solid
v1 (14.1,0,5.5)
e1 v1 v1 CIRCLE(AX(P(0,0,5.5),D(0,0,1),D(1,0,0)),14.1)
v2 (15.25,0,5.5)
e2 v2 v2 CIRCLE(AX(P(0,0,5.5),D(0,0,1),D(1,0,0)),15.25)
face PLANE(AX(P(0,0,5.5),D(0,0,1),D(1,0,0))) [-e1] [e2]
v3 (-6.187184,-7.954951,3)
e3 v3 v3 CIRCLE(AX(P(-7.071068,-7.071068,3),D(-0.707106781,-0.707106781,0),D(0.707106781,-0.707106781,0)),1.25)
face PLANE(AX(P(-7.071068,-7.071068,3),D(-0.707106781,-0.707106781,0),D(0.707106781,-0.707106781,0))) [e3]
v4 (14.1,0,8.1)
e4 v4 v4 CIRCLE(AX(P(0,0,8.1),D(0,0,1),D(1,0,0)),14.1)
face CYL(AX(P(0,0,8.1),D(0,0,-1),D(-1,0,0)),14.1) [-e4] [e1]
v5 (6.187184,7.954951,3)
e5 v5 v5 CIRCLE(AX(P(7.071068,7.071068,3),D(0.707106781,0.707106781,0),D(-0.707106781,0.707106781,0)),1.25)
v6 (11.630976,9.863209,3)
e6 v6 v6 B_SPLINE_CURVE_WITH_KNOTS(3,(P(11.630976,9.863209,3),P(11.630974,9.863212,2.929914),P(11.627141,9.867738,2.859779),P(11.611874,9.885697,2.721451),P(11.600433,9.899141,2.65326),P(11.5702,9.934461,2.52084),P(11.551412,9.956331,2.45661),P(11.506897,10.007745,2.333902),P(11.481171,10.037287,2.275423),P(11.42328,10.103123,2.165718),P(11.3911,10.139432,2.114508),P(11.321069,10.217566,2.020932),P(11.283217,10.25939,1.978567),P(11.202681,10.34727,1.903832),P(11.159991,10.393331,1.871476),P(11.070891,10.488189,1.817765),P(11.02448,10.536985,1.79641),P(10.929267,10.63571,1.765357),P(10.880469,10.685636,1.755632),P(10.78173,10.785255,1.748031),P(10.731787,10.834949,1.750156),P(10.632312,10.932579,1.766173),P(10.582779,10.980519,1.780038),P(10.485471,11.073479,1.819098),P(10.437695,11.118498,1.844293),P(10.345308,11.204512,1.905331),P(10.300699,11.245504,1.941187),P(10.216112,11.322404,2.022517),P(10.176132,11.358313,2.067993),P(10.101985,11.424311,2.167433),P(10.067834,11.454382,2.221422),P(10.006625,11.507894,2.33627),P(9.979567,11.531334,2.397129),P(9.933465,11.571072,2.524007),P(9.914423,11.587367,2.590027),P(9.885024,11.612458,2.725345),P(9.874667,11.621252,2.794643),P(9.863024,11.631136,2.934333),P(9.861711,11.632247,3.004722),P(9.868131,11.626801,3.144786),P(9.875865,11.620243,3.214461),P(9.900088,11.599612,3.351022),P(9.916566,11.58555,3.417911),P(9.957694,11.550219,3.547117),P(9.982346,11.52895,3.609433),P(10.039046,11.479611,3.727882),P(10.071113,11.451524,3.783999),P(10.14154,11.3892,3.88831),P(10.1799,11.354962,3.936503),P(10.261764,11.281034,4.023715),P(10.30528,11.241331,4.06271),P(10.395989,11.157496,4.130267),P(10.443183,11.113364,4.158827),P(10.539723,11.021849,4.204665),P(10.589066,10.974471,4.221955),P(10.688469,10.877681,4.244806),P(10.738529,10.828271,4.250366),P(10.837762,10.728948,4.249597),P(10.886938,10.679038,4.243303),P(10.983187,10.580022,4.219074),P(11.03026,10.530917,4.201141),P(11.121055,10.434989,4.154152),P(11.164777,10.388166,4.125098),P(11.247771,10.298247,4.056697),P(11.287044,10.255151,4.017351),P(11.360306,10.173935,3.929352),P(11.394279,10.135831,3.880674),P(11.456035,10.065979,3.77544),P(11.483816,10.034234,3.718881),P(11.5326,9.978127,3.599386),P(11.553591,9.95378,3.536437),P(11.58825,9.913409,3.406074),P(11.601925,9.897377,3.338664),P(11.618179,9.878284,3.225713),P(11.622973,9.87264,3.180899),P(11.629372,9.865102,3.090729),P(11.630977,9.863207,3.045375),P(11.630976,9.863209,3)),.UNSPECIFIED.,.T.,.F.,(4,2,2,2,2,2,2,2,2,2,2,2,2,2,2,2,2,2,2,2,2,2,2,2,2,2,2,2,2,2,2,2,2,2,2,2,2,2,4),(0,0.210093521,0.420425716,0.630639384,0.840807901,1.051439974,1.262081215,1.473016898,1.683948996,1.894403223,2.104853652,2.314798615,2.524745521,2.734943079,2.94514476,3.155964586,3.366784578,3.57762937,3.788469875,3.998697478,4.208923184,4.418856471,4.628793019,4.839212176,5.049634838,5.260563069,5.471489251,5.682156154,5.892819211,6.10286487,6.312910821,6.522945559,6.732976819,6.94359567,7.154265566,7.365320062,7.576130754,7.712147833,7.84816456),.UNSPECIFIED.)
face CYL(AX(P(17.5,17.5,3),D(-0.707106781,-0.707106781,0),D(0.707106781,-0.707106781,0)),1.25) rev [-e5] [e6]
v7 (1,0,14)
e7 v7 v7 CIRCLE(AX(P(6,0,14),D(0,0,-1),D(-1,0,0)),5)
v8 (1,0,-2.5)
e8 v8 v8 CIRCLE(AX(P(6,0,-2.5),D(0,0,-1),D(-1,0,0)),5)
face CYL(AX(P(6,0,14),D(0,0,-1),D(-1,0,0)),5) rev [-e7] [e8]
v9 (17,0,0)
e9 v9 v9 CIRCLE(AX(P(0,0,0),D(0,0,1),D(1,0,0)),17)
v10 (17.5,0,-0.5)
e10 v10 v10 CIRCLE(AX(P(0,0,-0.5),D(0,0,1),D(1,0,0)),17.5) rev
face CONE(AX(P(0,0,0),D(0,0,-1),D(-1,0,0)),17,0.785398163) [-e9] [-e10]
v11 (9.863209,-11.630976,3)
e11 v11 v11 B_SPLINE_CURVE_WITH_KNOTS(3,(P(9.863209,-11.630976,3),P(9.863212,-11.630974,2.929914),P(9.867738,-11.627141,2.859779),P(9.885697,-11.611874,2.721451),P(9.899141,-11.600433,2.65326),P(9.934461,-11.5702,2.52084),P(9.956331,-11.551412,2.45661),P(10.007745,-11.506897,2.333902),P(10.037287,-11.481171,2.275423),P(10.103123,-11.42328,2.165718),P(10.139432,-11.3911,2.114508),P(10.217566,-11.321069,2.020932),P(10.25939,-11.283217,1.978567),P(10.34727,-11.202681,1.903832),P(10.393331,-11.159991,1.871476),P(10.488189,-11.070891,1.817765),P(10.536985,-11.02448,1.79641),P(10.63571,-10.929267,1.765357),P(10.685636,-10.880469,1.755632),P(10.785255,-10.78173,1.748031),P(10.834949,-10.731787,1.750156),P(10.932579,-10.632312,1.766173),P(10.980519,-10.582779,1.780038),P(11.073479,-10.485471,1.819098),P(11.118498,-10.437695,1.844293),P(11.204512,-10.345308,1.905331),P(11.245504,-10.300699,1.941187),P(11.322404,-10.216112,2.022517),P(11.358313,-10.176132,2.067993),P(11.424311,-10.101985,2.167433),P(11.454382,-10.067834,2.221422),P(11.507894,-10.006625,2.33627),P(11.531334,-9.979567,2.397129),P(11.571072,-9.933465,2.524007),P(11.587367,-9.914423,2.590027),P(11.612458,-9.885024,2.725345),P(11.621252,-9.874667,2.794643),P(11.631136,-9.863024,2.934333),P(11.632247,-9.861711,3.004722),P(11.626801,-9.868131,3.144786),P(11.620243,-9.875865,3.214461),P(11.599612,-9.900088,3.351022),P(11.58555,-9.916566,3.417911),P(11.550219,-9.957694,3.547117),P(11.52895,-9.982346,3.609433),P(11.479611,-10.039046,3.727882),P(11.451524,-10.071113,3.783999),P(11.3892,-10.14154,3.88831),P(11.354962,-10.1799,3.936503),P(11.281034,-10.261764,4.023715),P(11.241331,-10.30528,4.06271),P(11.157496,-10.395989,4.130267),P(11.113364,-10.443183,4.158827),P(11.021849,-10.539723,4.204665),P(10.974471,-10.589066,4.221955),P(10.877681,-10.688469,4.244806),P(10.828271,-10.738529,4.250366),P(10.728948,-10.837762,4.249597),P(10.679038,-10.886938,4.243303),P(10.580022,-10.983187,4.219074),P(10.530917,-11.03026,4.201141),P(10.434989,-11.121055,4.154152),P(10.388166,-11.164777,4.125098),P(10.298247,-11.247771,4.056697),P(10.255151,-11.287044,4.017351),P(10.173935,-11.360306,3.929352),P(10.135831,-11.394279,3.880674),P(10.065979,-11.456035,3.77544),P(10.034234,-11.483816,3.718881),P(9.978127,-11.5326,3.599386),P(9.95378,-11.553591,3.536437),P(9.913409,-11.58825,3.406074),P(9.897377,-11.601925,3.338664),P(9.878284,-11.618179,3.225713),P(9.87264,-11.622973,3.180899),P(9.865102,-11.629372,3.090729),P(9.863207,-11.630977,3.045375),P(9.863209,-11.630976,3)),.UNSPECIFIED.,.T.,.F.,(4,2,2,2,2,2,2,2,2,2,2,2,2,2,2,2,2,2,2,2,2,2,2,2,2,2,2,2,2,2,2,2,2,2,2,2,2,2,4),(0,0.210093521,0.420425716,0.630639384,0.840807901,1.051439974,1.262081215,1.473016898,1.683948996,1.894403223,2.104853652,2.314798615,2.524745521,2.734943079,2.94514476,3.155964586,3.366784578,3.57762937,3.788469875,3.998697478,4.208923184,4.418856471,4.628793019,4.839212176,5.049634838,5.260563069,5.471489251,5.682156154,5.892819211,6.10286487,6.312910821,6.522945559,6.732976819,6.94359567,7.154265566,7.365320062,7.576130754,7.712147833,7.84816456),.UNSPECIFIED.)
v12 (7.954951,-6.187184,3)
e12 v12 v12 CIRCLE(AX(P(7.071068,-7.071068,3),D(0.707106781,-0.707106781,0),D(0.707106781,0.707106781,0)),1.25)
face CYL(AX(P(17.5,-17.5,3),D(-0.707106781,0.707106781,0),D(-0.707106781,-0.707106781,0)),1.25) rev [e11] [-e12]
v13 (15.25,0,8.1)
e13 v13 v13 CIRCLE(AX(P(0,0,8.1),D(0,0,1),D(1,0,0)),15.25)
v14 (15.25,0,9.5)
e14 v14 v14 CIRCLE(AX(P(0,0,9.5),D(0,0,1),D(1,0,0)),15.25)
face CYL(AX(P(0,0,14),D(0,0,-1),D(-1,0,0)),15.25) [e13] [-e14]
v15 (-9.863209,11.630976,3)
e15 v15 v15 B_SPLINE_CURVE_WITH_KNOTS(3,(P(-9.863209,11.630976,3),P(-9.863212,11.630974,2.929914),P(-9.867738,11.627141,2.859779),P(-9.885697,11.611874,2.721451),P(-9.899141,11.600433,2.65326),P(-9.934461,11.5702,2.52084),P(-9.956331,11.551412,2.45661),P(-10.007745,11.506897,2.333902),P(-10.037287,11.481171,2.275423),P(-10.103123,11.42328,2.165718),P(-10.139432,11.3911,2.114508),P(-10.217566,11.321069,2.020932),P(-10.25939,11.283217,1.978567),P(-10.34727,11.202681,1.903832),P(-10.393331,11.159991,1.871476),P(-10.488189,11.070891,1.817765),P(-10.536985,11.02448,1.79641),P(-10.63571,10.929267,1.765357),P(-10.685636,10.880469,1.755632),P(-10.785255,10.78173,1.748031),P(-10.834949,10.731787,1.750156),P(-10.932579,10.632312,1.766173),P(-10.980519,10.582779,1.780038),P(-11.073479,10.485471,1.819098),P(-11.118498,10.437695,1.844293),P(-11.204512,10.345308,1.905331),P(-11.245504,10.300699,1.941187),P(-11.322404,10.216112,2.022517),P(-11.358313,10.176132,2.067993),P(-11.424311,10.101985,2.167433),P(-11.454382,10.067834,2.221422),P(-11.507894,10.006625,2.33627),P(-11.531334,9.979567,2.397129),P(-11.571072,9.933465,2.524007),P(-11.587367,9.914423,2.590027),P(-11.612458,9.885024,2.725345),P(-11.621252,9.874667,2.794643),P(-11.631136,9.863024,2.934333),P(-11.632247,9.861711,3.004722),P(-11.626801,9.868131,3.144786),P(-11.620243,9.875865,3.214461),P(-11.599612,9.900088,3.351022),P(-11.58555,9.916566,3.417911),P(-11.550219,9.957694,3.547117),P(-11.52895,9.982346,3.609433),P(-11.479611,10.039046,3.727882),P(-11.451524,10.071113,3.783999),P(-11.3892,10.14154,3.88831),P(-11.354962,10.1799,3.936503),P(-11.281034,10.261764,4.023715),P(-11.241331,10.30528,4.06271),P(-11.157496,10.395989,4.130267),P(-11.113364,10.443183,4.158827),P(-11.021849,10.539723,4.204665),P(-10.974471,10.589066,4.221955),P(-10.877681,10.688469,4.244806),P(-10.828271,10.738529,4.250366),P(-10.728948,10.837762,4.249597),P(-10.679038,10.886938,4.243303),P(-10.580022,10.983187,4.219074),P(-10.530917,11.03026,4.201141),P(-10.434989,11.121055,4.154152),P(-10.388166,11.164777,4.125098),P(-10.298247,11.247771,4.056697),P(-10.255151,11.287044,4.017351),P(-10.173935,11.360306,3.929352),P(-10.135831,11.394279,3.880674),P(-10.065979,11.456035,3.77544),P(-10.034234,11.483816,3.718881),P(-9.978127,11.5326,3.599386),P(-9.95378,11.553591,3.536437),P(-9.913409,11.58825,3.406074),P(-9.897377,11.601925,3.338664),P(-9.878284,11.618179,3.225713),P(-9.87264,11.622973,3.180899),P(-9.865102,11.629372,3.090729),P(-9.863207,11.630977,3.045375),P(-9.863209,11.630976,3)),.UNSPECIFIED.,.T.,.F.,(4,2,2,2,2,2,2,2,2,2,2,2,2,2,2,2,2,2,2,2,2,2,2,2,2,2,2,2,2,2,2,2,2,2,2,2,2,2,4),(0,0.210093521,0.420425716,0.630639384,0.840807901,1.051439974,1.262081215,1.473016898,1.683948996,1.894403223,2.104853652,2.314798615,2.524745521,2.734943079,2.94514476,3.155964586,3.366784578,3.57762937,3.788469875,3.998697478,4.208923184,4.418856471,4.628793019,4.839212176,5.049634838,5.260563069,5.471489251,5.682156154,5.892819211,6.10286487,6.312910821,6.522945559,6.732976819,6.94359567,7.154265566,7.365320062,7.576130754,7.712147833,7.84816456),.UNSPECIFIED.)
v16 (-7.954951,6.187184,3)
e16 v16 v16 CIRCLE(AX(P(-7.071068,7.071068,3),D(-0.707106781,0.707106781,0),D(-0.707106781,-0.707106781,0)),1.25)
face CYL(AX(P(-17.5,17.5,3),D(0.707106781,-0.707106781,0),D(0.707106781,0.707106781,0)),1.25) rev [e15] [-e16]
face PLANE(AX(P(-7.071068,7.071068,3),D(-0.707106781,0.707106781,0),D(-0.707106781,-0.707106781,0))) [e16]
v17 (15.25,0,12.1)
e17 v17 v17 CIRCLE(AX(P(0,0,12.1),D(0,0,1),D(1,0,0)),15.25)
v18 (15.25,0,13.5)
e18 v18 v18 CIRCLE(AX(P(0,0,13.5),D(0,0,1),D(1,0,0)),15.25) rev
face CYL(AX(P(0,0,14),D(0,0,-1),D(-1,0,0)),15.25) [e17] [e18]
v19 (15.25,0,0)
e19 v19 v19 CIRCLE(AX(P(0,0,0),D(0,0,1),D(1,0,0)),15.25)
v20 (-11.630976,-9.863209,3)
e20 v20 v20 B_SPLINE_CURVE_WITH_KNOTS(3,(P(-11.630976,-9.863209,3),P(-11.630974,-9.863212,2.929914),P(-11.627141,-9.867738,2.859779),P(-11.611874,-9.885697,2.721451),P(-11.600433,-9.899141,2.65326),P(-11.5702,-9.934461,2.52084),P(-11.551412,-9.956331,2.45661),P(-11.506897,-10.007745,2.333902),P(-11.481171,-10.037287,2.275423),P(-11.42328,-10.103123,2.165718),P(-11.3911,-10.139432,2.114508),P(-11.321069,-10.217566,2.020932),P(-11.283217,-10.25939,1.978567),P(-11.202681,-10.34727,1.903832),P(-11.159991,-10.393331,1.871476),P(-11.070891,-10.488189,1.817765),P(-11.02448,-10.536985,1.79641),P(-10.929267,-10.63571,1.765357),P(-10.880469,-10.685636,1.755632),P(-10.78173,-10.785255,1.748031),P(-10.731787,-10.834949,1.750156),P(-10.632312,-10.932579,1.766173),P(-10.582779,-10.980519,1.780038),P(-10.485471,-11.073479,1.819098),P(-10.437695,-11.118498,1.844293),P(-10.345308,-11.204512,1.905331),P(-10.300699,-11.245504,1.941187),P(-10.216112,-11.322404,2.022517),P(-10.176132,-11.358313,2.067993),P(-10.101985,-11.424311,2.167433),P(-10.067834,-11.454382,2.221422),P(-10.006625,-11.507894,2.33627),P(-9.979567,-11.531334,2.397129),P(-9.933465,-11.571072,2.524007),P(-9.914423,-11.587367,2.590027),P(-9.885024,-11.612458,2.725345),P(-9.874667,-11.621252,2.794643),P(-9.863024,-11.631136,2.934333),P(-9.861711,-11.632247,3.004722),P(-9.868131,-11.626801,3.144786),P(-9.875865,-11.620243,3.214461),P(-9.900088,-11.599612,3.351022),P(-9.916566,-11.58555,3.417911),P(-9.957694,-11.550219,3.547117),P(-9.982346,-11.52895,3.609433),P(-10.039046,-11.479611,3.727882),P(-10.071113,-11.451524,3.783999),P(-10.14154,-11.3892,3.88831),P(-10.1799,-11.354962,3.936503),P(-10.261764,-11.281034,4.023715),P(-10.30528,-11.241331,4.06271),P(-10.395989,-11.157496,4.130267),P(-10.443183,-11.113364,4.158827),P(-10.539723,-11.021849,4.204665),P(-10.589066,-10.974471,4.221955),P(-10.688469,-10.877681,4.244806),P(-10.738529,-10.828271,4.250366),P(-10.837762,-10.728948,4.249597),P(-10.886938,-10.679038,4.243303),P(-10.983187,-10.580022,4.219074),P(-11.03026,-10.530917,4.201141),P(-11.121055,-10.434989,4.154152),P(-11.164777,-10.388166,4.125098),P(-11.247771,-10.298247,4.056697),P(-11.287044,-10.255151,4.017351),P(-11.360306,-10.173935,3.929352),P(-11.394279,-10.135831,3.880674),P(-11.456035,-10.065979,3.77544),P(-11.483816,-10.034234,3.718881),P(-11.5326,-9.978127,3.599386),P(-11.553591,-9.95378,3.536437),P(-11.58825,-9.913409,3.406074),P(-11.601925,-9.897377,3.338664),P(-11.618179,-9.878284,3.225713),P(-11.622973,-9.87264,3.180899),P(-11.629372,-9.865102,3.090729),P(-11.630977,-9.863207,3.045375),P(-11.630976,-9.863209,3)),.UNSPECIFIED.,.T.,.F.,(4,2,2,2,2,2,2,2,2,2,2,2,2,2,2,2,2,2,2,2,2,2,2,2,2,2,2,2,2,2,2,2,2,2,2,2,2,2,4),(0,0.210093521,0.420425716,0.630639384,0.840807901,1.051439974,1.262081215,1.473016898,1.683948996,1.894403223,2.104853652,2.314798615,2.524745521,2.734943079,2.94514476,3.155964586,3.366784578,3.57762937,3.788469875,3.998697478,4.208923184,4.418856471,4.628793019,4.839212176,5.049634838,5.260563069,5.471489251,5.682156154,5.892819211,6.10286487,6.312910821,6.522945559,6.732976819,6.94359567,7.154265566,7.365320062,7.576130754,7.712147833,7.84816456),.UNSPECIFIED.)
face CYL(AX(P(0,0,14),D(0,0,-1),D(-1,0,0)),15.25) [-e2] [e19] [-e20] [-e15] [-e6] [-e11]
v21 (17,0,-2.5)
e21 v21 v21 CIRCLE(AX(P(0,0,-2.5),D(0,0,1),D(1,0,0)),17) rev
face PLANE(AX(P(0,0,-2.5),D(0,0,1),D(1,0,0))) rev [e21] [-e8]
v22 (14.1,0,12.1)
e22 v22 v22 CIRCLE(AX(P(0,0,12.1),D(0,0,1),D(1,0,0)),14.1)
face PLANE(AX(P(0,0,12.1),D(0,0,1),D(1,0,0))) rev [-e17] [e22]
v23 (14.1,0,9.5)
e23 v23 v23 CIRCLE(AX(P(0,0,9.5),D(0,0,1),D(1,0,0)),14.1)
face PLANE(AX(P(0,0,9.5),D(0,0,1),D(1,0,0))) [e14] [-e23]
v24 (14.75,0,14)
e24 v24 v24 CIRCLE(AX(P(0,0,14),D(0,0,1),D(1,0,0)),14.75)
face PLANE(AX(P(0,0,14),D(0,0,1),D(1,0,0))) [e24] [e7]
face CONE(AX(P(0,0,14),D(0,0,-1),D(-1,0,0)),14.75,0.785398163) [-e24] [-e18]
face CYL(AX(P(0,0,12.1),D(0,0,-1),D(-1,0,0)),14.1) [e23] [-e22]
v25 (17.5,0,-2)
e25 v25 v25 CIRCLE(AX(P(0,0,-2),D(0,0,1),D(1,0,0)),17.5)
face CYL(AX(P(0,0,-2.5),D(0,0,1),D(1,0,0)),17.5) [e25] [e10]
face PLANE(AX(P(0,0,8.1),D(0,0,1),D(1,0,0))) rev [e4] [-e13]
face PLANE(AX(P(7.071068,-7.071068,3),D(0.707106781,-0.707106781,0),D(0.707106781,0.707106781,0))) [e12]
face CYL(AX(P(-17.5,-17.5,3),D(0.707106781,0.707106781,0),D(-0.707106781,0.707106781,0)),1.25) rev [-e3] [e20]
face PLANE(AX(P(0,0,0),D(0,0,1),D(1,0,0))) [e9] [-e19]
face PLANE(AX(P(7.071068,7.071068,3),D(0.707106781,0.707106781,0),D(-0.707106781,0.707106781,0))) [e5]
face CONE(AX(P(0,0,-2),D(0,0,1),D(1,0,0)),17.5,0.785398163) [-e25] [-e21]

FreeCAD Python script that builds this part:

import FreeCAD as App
import Part
import Sketcher
Q = App.Units.Quantity


def edges_at(feature, points):
    """Names of the edges that pass closest to the given points."""
    edges = feature.Shape.Edges
    near = lambda p: min(range(len(edges)), key=lambda i: edges[i].distToShape(Part.Vertex(*p))[0])
    return sorted({f"Edge{near(p) + 1}" for p in points})

doc = App.newDocument("Part")
params = doc.addObject("Spreadsheet::Sheet", "Params")
for row, (alias, value) in enumerate([
    ("sketch1_diameter", "35 mm"),
    ("pad1_length", "2.5 mm"),
    ("sketch2_diameter", "30.5 mm"),
    ("pad2_length", "14 mm"),
    ("sketch3_diameter", "30.5 mm"),
    ("sketch3_diameter2", "28.2 mm"),
    ("pocket1_length", "2.6 mm"),
    ("sketch4_diameter", "30.5 mm"),
    ("sketch4_diameter2", "28.2 mm"),
    ("pocket2_length", "2.6 mm"),
    ("chamfer_size", "0.5 mm"),
    ("sketch5_diameter", "10 mm"),
    ("sketch6_diameter", "2.5 mm"),
], start=1):
    params.set(f"A{row}", alias)
    params.set(f"B{row}", "=" + value)
    params.setAlias(f"B{row}", alias)

body = doc.addObject("PartDesign::Body", "Body")

# Sketch on XY plane
sketch1 = body.newObject("Sketcher::SketchObject", "Sketch")
sketch1.AttachmentSupport = (doc.getObject("XY_Plane"), [""])
sketch1.MapMode = "FlatFace"
sketch1.addGeometry(Part.Circle(App.Vector(0, 0, 0), App.Vector(0, 0, 1), 18), False)
sketch1.addConstraint(Sketcher.Constraint("Coincident", 0, 3, -1, 1))
sketch1.addConstraint(Sketcher.Constraint("Diameter", 0, Q("35 mm")))
sketch1.setExpression("Constraints[1]", "Params.sketch1_diameter")
pad1 = body.newObject("PartDesign::Pad", "Pad")
pad1.Profile = sketch1
pad1.setExpression("Length", "Params.pad1_length")
pad1.Reversed = True

# Sketch on XY plane
sketch2 = body.newObject("Sketcher::SketchObject", "Sketch001")
sketch2.AttachmentSupport = (doc.getObject("XY_Plane"), [""])
sketch2.MapMode = "FlatFace"
sketch2.addGeometry(Part.Circle(App.Vector(0, 0, 0), App.Vector(0, 0, 1), 15), False)
sketch2.addConstraint(Sketcher.Constraint("Coincident", 0, 3, -1, 1))
sketch2.addConstraint(Sketcher.Constraint("Diameter", 0, Q("30.5 mm")))
sketch2.setExpression("Constraints[1]", "Params.sketch2_diameter")
pad2 = body.newObject("PartDesign::Pad", "Pad001")
pad2.Profile = sketch2
pad2.setExpression("Length", "Params.pad2_length")

# Sketch on XY plane
sketch3 = body.newObject("Sketcher::SketchObject", "Sketch002")
sketch3.AttachmentSupport = (doc.getObject("XY_Plane"), [""])
sketch3.MapMode = "FlatFace"
sketch3.AttachmentOffset = App.Placement(App.Vector(0, 0, 5.5), App.Rotation())
sketch3.addGeometry(Part.Circle(App.Vector(0, 0, 0), App.Vector(0, 0, 1), 15), False)
sketch3.addGeometry(Part.Circle(App.Vector(0, 0, 0), App.Vector(0, 0, 1), 14), False)
sketch3.addConstraint(Sketcher.Constraint("Coincident", 0, 3, -1, 1))
sketch3.addConstraint(Sketcher.Constraint("Coincident", 1, 3, -1, 1))
sketch3.addConstraint(Sketcher.Constraint("Diameter", 0, Q("30.5 mm")))
sketch3.addConstraint(Sketcher.Constraint("Diameter", 1, Q("28.2 mm")))
sketch3.setExpression("Constraints[2]", "Params.sketch3_diameter")
sketch3.setExpression("Constraints[3]", "Params.sketch3_diameter2")
pocket1 = body.newObject("PartDesign::Pocket", "Pocket")
pocket1.Profile = sketch3
pocket1.setExpression("Length", "Params.pocket1_length")
pocket1.Reversed = True

# Sketch on XY plane
sketch4 = body.newObject("Sketcher::SketchObject", "Sketch003")
sketch4.AttachmentSupport = (doc.getObject("XY_Plane"), [""])
sketch4.MapMode = "FlatFace"
sketch4.AttachmentOffset = App.Placement(App.Vector(0, 0, 9.5), App.Rotation())
sketch4.addGeometry(Part.Circle(App.Vector(0, 0, 0), App.Vector(0, 0, 1), 15), False)
sketch4.addGeometry(Part.Circle(App.Vector(0, 0, 0), App.Vector(0, 0, 1), 14), False)
sketch4.addConstraint(Sketcher.Constraint("Coincident", 0, 3, -1, 1))
sketch4.addConstraint(Sketcher.Constraint("Coincident", 1, 3, -1, 1))
sketch4.addConstraint(Sketcher.Constraint("Diameter", 0, Q("30.5 mm")))
sketch4.addConstraint(Sketcher.Constraint("Diameter", 1, Q("28.2 mm")))
sketch4.setExpression("Constraints[2]", "Params.sketch4_diameter")
sketch4.setExpression("Constraints[3]", "Params.sketch4_diameter2")
pocket2 = body.newObject("PartDesign::Pocket", "Pocket001")
pocket2.Profile = sketch4
pocket2.setExpression("Length", "Params.pocket2_length")
pocket2.Reversed = True
doc.recompute()

chamfer = body.newObject("PartDesign::Chamfer", "Chamfer")
chamfer.Base = (pocket2, edges_at(pocket2, [(-17.5, 0, 0), (-17.5, 0, -2.5), (-15.25, 0, 14)]))
chamfer.setExpression("Size", "Params.chamfer_size")

# Sketch on XY plane
sketch5 = body.newObject("Sketcher::SketchObject", "Sketch004")
sketch5.AttachmentSupport = (doc.getObject("XY_Plane"), [""])
sketch5.MapMode = "FlatFace"
sketch5.AttachmentOffset = App.Placement(App.Vector(0, 0, -2.5), App.Rotation())
sketch5.addGeometry(Part.Circle(App.Vector(6, 0, 0), App.Vector(0, 0, 1), 5), False)
sketch5.addConstraint(Sketcher.Constraint("PointOnObject", 0, 3, -1))
sketch5.addConstraint(Sketcher.Constraint("Diameter", 0, Q("10 mm")))
sketch5.addConstraint(Sketcher.Constraint("DistanceX", -1, 1, 0, 3, Q("6 mm")))
sketch5.setExpression("Constraints[1]", "Params.sketch5_diameter")
pocket3 = body.newObject("PartDesign::Pocket", "Pocket002")
pocket3.Profile = sketch5
pocket3.Type = "ThroughAll"
pocket3.Reversed = True

# Sketch on an angled plane
sketch6 = body.newObject("Sketcher::SketchObject", "Sketch005")
sketch6.Placement = App.Placement(App.Vector(7.071068, 7.071068, 0), App.Rotation(App.Vector(0, 0, -1), App.Vector(-0.707106781, 0.707106781, 0), App.Vector(0.707106781, 0.707106781, 0), "ZXY"))
sketch6.addGeometry(Part.Circle(App.Vector(-3, 0, 0), App.Vector(0, 0, 1), 1.2), False)
sketch6.addConstraint(Sketcher.Constraint("PointOnObject", 0, 3, -1))
sketch6.addConstraint(Sketcher.Constraint("Diameter", 0, Q("2.5 mm")))
sketch6.addConstraint(Sketcher.Constraint("DistanceX", 0, 3, -1, 1, Q("3 mm")))
sketch6.setExpression("Constraints[1]", "Params.sketch6_diameter")
pocket4 = body.newObject("PartDesign::Pocket", "Pocket003")
pocket4.Profile = sketch6
pocket4.Type = "ThroughAll"
pocket4.Reversed = True
doc.recompute()

polarpattern = body.newObject("PartDesign::PolarPattern", "PolarPattern")
polarpattern.Originals = [pocket4]
polarpattern.Axis = (doc.getObject("Z_Axis"), [""])
polarpattern.Angle = 360
polarpattern.Occurrences = 4
body.Tip = polarpattern

doc.recompute()
